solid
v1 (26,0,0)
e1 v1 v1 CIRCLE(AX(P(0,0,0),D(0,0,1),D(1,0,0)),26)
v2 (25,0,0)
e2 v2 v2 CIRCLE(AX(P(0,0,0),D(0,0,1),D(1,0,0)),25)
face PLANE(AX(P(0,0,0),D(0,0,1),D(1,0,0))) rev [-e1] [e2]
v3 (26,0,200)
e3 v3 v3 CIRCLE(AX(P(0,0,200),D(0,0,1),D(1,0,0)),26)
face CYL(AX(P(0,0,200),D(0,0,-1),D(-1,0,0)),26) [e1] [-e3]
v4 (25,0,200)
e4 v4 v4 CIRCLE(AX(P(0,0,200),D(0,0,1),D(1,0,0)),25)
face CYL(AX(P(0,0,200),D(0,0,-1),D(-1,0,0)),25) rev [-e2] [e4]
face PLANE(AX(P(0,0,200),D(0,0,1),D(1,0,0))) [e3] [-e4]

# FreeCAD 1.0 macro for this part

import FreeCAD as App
import Part
import Sketcher

V = App.Vector

doc = App.newDocument("Part")
params = doc.addObject("Spreadsheet::Sheet", "Params")
for row, (alias, value) in enumerate([
    ("sketch1_diameter", "52 mm"),
    ("sketch1_diameter2", "50 mm"),
    ("pad1_length", "200 mm"),
], start=1):
    params.set(f"A{row}", alias)
    params.set(f"B{row}", "=" + value)
    params.setAlias(f"B{row}", alias)

body = doc.addObject("PartDesign::Body", "Body")

# Sketch on XY plane
sketch1 = body.newObject("Sketcher::SketchObject", "Sketch")
sketch1.AttachmentSupport = (doc.getObject("XY_Plane"), [""])
sketch1.MapMode = "FlatFace"
sketch1.addGeometry([
    Part.Circle(V(0, 0, 0), V(0, 0, 1), 26),
    Part.Circle(V(0, 0, 0), V(0, 0, 1), 25),
], False)
sketch1.addConstraint([
    Sketcher.Constraint("Coincident", 0, 3, -1, 1),
    Sketcher.Constraint("Coincident", 1, 3, -1, 1),
    Sketcher.Constraint("Diameter", 0, 52.0),
    Sketcher.Constraint("Diameter", 1, 50.0),
])
sketch1.setExpression("Constraints[2]", "Params.sketch1_diameter")
sketch1.setExpression("Constraints[3]", "Params.sketch1_diameter2")
pad1 = body.newObject("PartDesign::Pad", "Pad")
pad1.Profile = sketch1
pad1.setExpression("Length", "Params.pad1_length")

doc.recompute()
